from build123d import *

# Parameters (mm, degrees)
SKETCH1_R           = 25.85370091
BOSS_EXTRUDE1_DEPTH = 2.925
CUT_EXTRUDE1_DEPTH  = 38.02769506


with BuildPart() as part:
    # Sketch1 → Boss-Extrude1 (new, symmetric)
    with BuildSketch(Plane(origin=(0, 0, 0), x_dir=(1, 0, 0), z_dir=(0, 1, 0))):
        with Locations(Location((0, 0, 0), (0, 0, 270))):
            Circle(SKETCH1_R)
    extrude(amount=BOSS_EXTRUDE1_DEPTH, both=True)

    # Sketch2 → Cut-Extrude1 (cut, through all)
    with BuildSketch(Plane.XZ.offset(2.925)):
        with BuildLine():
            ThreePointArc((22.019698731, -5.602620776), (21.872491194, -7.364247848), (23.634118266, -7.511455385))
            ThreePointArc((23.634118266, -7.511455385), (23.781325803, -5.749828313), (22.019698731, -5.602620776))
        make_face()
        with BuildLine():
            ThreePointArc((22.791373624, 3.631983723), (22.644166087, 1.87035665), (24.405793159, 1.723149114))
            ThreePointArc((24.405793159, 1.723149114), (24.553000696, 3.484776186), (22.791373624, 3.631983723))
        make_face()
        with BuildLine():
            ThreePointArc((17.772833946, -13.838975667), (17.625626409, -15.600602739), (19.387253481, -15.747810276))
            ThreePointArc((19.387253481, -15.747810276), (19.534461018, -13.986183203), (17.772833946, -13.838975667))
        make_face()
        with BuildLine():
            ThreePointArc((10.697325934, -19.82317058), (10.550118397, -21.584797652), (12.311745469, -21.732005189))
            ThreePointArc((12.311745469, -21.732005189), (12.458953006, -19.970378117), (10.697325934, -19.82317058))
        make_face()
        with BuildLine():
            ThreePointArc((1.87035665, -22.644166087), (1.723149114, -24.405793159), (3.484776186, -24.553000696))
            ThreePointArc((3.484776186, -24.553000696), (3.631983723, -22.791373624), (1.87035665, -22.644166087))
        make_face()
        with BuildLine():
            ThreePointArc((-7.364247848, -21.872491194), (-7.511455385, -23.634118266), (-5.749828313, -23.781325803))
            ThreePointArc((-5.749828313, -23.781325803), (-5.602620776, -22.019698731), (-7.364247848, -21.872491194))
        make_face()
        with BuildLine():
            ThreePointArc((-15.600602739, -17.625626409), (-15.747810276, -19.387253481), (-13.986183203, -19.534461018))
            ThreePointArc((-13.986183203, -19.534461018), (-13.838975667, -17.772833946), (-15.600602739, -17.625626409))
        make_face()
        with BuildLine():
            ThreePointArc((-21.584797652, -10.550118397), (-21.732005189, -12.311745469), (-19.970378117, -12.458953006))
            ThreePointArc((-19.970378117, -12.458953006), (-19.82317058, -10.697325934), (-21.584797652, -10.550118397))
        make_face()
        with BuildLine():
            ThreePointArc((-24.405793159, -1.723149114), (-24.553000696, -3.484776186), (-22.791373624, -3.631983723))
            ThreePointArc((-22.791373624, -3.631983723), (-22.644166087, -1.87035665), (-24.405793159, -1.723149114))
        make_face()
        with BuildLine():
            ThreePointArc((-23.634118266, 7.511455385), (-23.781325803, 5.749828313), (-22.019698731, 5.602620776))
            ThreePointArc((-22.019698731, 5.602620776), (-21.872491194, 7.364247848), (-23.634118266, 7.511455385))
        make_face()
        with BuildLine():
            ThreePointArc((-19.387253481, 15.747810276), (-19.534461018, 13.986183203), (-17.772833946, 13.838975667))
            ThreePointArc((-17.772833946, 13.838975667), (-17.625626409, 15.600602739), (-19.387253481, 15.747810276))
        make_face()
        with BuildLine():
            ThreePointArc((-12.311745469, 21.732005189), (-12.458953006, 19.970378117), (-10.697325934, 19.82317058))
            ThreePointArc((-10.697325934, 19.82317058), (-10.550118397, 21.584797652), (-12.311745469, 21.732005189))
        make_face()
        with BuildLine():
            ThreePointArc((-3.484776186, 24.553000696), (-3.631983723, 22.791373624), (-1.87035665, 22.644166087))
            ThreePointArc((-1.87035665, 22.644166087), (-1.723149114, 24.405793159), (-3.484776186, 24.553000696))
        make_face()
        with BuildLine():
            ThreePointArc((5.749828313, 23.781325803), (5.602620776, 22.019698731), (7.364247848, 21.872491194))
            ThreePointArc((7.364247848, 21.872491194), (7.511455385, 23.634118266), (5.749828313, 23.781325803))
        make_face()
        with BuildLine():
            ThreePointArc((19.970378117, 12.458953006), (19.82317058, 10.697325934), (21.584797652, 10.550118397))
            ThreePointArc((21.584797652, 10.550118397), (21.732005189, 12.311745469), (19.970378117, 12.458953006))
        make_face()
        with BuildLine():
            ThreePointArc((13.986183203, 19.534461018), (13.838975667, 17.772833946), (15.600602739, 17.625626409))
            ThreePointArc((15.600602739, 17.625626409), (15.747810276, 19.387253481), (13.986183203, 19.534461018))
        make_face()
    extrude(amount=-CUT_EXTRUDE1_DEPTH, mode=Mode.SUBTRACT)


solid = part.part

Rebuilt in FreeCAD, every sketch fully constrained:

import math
import FreeCAD as App
import Part
import Sketcher

doc = App.newDocument("Part")
body = doc.addObject("PartDesign::Body", "Body")

# Sketch on XZ plane
sketch1 = body.newObject("Sketcher::SketchObject", "Sketch")
sketch1.AttachmentSupport = (doc.getObject("XZ_Plane"), [""])
sketch1.MapMode = "FlatFace"
sketch1.addGeometry(Part.Circle(App.Vector(0, 0, 0), App.Vector(0, 0, 1), 25.853701), False)
sketch1.addConstraint(Sketcher.Constraint("Coincident", 0, 3, -1, 1))
sketch1.addConstraint(Sketcher.Constraint("Diameter", 0, 51.707402))
pad1 = body.newObject("PartDesign::Pad", "Pad")
pad1.Profile = sketch1
pad1.Length = 5.85
pad1.Midplane = True

# Sketch on XZ plane
sketch2 = body.newObject("Sketcher::SketchObject", "Sketch001")
sketch2.AttachmentSupport = (doc.getObject("XZ_Plane"), [""])
sketch2.MapMode = "FlatFace"
sketch2.AttachmentOffset = App.Placement(App.Vector(0, 0, 2.925), App.Rotation())
sketch2.addGeometry(Part.Circle(App.Vector(22.826908, -6.557038, 0), App.Vector(0, 0, 1), 1.25), False)
sketch2.addGeometry(Part.ArcOfCircle(Part.Circle(App.Vector(23.598583, 2.677566, 0), App.Vector(0, 0, 1), 1.25), math.radians(130.223268), math.radians(310.223268)), False)
sketch2.addGeometry(Part.ArcOfCircle(Part.Circle(App.Vector(23.598583, 2.677566, 0), App.Vector(0, 0, 1), 1.25), math.radians(-49.776732), math.radians(130.223268)), False)
sketch2.addGeometry(Part.ArcOfCircle(Part.Circle(App.Vector(18.580044, -14.793393, 0), App.Vector(0, 0, 1), 1.25), math.radians(130.223268), math.radians(310.223268)), False)
sketch2.addGeometry(Part.ArcOfCircle(Part.Circle(App.Vector(18.580044, -14.793393, 0), App.Vector(0, 0, 1), 1.25), math.radians(-49.776732), math.radians(130.223268)), False)
sketch2.addGeometry(Part.Circle(App.Vector(11.504536, -20.777588, 0), App.Vector(0, 0, 1), 1.25), False)
sketch2.addGeometry(Part.ArcOfCircle(Part.Circle(App.Vector(2.677566, -23.598583, 0), App.Vector(0, 0, 1), 1.25), math.radians(130.223268), math.radians(310.223268)), False)
sketch2.addGeometry(Part.ArcOfCircle(Part.Circle(App.Vector(2.677566, -23.598583, 0), App.Vector(0, 0, 1), 1.25), math.radians(-49.776732), math.radians(130.223268)), False)
sketch2.addGeometry(Part.Circle(App.Vector(-6.557038, -22.826908, 0), App.Vector(0, 0, 1), 1.25), False)
sketch2.addGeometry(Part.ArcOfCircle(Part.Circle(App.Vector(-14.793393, -18.580044, 0), App.Vector(0, 0, 1), 1.25), math.radians(130.223268), math.radians(310.223268)), False)
sketch2.addGeometry(Part.ArcOfCircle(Part.Circle(App.Vector(-14.793393, -18.580044, 0), App.Vector(0, 0, 1), 1.25), math.radians(-49.776732), math.radians(130.223268)), False)
sketch2.addGeometry(Part.Circle(App.Vector(-20.777588, -11.504536, 0), App.Vector(0, 0, 1), 1.25), False)
sketch2.addGeometry(Part.ArcOfCircle(Part.Circle(App.Vector(-23.598583, -2.677566, 0), App.Vector(0, 0, 1), 1.25), math.radians(130.223268), math.radians(310.223268)), False)
sketch2.addGeometry(Part.ArcOfCircle(Part.Circle(App.Vector(-23.598583, -2.677566, 0), App.Vector(0, 0, 1), 1.25), math.radians(-49.776732), math.radians(130.223268)), False)
sketch2.addGeometry(Part.Circle(App.Vector(-22.826908, 6.557038, 0), App.Vector(0, 0, 1), 1.25), False)
sketch2.addGeometry(Part.ArcOfCircle(Part.Circle(App.Vector(-18.580044, 14.793393, 0), App.Vector(0, 0, 1), 1.25), math.radians(130.223268), math.radians(310.223268)), False)
sketch2.addGeometry(Part.ArcOfCircle(Part.Circle(App.Vector(-18.580044, 14.793393, 0), App.Vector(0, 0, 1), 1.25), math.radians(-49.776732), math.radians(130.223268)), False)
sketch2.addGeometry(Part.Circle(App.Vector(-11.504536, 20.777588, 0), App.Vector(0, 0, 1), 1.25), False)
sketch2.addGeometry(Part.ArcOfCircle(Part.Circle(App.Vector(-2.677566, 23.598583, 0), App.Vector(0, 0, 1), 1.25), math.radians(130.223268), math.radians(310.223268)), False)
sketch2.addGeometry(Part.ArcOfCircle(Part.Circle(App.Vector(-2.677566, 23.598583, 0), App.Vector(0, 0, 1), 1.25), math.radians(-49.776732), math.radians(130.223268)), False)
sketch2.addGeometry(Part.Circle(App.Vector(6.557038, 22.826908, 0), App.Vector(0, 0, 1), 1.25), False)
sketch2.addGeometry(Part.Circle(App.Vector(20.777588, 11.504536, 0), App.Vector(0, 0, 1), 1.25), False)
sketch2.addGeometry(Part.ArcOfCircle(Part.Circle(App.Vector(14.793393, 18.580044, 0), App.Vector(0, 0, 1), 1.25), math.radians(130.223268), math.radians(310.223268)), False)
sketch2.addGeometry(Part.ArcOfCircle(Part.Circle(App.Vector(14.793393, 18.580044, 0), App.Vector(0, 0, 1), 1.25), math.radians(-49.776732), math.radians(130.223268)), False)
sketch2.addConstraint(Sketcher.Constraint("Tangent", 1, 1, 2, 2))
sketch2.addConstraint(Sketcher.Constraint("Coincident", 2, 1, 1, 2))
sketch2.addConstraint(Sketcher.Constraint("Tangent", 3, 1, 4, 2))
sketch2.addConstraint(Sketcher.Constraint("Coincident", 4, 1, 3, 2))
sketch2.addConstraint(Sketcher.Constraint("Tangent", 6, 1, 7, 2))
sketch2.addConstraint(Sketcher.Constraint("Coincident", 7, 1, 6, 2))
sketch2.addConstraint(Sketcher.Constraint("Tangent", 9, 1, 10, 2))
sketch2.addConstraint(Sketcher.Constraint("Coincident", 10, 1, 9, 2))
sketch2.addConstraint(Sketcher.Constraint("Tangent", 12, 1, 13, 2))
sketch2.addConstraint(Sketcher.Constraint("Coincident", 13, 1, 12, 2))
sketch2.addConstraint(Sketcher.Constraint("Tangent", 15, 1, 16, 2))
sketch2.addConstraint(Sketcher.Constraint("Coincident", 16, 1, 15, 2))
sketch2.addConstraint(Sketcher.Constraint("Tangent", 18, 1, 19, 2))
sketch2.addConstraint(Sketcher.Constraint("Coincident", 19, 1, 18, 2))
sketch2.addConstraint(Sketcher.Constraint("Tangent", 22, 1, 23, 2))
sketch2.addConstraint(Sketcher.Constraint("Coincident", 23, 1, 22, 2))
sketch2.addConstraint(Sketcher.Constraint("Equal", 0, 1))
sketch2.addConstraint(Sketcher.Constraint("Equal", 2, 3))
sketch2.addConstraint(Sketcher.Constraint("Equal", 4, 5))
sketch2.addConstraint(Sketcher.Constraint("Equal", 5, 6))
sketch2.addConstraint(Sketcher.Constraint("Equal", 7, 8))
sketch2.addConstraint(Sketcher.Constraint("Equal", 8, 9))
sketch2.addConstraint(Sketcher.Constraint("Equal", 10, 11))
sketch2.addConstraint(Sketcher.Constraint("Equal", 11, 12))
sketch2.addConstraint(Sketcher.Constraint("Equal", 13, 14))
sketch2.addConstraint(Sketcher.Constraint("Equal", 14, 15))
sketch2.addConstraint(Sketcher.Constraint("Equal", 16, 17))
sketch2.addConstraint(Sketcher.Constraint("Equal", 17, 18))
sketch2.addConstraint(Sketcher.Constraint("Equal", 19, 20))
sketch2.addConstraint(Sketcher.Constraint("Equal", 20, 21))
sketch2.addConstraint(Sketcher.Constraint("Equal", 21, 22))
sketch2.addConstraint(Sketcher.Constraint("Symmetric", 1, 3, 12, 3, -1, 1))
sketch2.addConstraint(Sketcher.Constraint("Symmetric", 0, 3, 14, 3, -1, 1))
sketch2.addConstraint(Sketcher.Constraint("Symmetric", 3, 3, 15, 3, -1, 1))
sketch2.addConstraint(Sketcher.Constraint("Symmetric", 5, 3, 17, 3, -1, 1))
sketch2.addConstraint(Sketcher.Constraint("Symmetric", 6, 3, 18, 3, -1, 1))
sketch2.addConstraint(Sketcher.Constraint("Symmetric", 8, 3, 20, 3, -1, 1))
sketch2.addConstraint(Sketcher.Constraint("Symmetric", 11, 3, 21, 3, -1, 1))
sketch2.addConstraint(Sketcher.Constraint("Symmetric", 9, 3, 22, 3, -1, 1))
sketch2.addConstraint(Sketcher.Constraint("Diameter", 0, 2.5))
sketch2.addConstraint(Sketcher.Constraint("DistanceY", 7, 1, -1, 1, 24.553001))
sketch2.addConstraint(Sketcher.Constraint("DistanceY", -1, 1, 18, 1, 24.553001))
sketch2.addConstraint(Sketcher.Constraint("DistanceX", 5, 3, 3, 1, 6.268298))
sketch2.addConstraint(Sketcher.Constraint("DistanceX", 16, 1, 17, 3, 6.268298))
sketch2.addConstraint(Sketcher.Constraint("DistanceX", -1, 1, 0, 3, 22.826908))
sketch2.addConstraint(Sketcher.Constraint("DistanceY", 0, 3, -1, 1, 6.557038))
sketch2.addConstraint(Sketcher.Constraint("DistanceX", 8, 3, -1, 1, 6.557038))
sketch2.addConstraint(Sketcher.Constraint("DistanceY", 8, 3, -1, 1, 22.826908))
sketch2.addConstraint(Sketcher.Constraint("DistanceY", -1, 1, 2, 1, 1.723149))
sketch2.addConstraint(Sketcher.Constraint("DistanceY", 4, 1, -1, 1, 15.74781))
sketch2.addConstraint(Sketcher.Constraint("DistanceY", 10, 1, -1, 1, 19.534461))
sketch2.addConstraint(Sketcher.Constraint("DistanceY", 12, 1, -1, 1, 1.723149))
sketch2.addConstraint(Sketcher.Constraint("DistanceY", -1, 1, 15, 1, 15.74781))
sketch2.addConstraint(Sketcher.Constraint("DistanceY", -1, 1, 22, 1, 19.534461))
sketch2.addConstraint(Sketcher.Constraint("DistanceX", 3, 3, 1, 3, 5.01854))
sketch2.addConstraint(Sketcher.Constraint("DistanceY", 3, 3, 1, 3, 17.470959))
sketch2.addConstraint(Sketcher.Constraint("DistanceX", 5, 3, 3, 3, 7.075508))
sketch2.addConstraint(Sketcher.Constraint("DistanceY", 5, 3, 0, 3, 14.22055))
sketch2.addConstraint(Sketcher.Constraint("DistanceX", 6, 3, 5, 3, 8.826969))
sketch2.addConstraint(Sketcher.Constraint("DistanceY", 6, 3, 3, 3, 8.80519))
sketch2.addConstraint(Sketcher.Constraint("DistanceX", 8, 3, 3, 3, 25.137082))
sketch2.addConstraint(Sketcher.Constraint("DistanceX", 9, 3, 7, 3, 17.470959))
sketch2.addConstraint(Sketcher.Constraint("DistanceY", 7, 3, 9, 3, 5.01854))
sketch2.addConstraint(Sketcher.Constraint("DistanceY", 10, 3, 11, 3, 7.075508))
sketch2.addConstraint(Sketcher.Constraint("DistanceX", 11, 3, 8, 3, 14.22055))
sketch2.addConstraint(Sketcher.Constraint("DistanceY", 11, 3, 12, 3, 8.826969))
sketch2.addConstraint(Sketcher.Constraint("DistanceX", 1, 1, 1, 3, 0.80721))
sketch2.addConstraint(Sketcher.Constraint("DistanceX", 6, 1, 7, 3, 0.80721))
sketch2.addConstraint(Sketcher.Constraint("DistanceX", 9, 1, 10, 3, 0.80721))
sketch2.addConstraint(Sketcher.Constraint("DistanceX", 13, 3, 13, 1, 0.80721))
sketch2.addConstraint(Sketcher.Constraint("DistanceX", 18, 3, 19, 1, 0.80721))
sketch2.addConstraint(Sketcher.Constraint("DistanceX", 22, 3, 23, 1, 0.80721))
pocket1 = body.newObject("PartDesign::Pocket", "Pocket")
pocket1.Profile = sketch2
pocket1.Type = "ThroughAll"

doc.recompute()
